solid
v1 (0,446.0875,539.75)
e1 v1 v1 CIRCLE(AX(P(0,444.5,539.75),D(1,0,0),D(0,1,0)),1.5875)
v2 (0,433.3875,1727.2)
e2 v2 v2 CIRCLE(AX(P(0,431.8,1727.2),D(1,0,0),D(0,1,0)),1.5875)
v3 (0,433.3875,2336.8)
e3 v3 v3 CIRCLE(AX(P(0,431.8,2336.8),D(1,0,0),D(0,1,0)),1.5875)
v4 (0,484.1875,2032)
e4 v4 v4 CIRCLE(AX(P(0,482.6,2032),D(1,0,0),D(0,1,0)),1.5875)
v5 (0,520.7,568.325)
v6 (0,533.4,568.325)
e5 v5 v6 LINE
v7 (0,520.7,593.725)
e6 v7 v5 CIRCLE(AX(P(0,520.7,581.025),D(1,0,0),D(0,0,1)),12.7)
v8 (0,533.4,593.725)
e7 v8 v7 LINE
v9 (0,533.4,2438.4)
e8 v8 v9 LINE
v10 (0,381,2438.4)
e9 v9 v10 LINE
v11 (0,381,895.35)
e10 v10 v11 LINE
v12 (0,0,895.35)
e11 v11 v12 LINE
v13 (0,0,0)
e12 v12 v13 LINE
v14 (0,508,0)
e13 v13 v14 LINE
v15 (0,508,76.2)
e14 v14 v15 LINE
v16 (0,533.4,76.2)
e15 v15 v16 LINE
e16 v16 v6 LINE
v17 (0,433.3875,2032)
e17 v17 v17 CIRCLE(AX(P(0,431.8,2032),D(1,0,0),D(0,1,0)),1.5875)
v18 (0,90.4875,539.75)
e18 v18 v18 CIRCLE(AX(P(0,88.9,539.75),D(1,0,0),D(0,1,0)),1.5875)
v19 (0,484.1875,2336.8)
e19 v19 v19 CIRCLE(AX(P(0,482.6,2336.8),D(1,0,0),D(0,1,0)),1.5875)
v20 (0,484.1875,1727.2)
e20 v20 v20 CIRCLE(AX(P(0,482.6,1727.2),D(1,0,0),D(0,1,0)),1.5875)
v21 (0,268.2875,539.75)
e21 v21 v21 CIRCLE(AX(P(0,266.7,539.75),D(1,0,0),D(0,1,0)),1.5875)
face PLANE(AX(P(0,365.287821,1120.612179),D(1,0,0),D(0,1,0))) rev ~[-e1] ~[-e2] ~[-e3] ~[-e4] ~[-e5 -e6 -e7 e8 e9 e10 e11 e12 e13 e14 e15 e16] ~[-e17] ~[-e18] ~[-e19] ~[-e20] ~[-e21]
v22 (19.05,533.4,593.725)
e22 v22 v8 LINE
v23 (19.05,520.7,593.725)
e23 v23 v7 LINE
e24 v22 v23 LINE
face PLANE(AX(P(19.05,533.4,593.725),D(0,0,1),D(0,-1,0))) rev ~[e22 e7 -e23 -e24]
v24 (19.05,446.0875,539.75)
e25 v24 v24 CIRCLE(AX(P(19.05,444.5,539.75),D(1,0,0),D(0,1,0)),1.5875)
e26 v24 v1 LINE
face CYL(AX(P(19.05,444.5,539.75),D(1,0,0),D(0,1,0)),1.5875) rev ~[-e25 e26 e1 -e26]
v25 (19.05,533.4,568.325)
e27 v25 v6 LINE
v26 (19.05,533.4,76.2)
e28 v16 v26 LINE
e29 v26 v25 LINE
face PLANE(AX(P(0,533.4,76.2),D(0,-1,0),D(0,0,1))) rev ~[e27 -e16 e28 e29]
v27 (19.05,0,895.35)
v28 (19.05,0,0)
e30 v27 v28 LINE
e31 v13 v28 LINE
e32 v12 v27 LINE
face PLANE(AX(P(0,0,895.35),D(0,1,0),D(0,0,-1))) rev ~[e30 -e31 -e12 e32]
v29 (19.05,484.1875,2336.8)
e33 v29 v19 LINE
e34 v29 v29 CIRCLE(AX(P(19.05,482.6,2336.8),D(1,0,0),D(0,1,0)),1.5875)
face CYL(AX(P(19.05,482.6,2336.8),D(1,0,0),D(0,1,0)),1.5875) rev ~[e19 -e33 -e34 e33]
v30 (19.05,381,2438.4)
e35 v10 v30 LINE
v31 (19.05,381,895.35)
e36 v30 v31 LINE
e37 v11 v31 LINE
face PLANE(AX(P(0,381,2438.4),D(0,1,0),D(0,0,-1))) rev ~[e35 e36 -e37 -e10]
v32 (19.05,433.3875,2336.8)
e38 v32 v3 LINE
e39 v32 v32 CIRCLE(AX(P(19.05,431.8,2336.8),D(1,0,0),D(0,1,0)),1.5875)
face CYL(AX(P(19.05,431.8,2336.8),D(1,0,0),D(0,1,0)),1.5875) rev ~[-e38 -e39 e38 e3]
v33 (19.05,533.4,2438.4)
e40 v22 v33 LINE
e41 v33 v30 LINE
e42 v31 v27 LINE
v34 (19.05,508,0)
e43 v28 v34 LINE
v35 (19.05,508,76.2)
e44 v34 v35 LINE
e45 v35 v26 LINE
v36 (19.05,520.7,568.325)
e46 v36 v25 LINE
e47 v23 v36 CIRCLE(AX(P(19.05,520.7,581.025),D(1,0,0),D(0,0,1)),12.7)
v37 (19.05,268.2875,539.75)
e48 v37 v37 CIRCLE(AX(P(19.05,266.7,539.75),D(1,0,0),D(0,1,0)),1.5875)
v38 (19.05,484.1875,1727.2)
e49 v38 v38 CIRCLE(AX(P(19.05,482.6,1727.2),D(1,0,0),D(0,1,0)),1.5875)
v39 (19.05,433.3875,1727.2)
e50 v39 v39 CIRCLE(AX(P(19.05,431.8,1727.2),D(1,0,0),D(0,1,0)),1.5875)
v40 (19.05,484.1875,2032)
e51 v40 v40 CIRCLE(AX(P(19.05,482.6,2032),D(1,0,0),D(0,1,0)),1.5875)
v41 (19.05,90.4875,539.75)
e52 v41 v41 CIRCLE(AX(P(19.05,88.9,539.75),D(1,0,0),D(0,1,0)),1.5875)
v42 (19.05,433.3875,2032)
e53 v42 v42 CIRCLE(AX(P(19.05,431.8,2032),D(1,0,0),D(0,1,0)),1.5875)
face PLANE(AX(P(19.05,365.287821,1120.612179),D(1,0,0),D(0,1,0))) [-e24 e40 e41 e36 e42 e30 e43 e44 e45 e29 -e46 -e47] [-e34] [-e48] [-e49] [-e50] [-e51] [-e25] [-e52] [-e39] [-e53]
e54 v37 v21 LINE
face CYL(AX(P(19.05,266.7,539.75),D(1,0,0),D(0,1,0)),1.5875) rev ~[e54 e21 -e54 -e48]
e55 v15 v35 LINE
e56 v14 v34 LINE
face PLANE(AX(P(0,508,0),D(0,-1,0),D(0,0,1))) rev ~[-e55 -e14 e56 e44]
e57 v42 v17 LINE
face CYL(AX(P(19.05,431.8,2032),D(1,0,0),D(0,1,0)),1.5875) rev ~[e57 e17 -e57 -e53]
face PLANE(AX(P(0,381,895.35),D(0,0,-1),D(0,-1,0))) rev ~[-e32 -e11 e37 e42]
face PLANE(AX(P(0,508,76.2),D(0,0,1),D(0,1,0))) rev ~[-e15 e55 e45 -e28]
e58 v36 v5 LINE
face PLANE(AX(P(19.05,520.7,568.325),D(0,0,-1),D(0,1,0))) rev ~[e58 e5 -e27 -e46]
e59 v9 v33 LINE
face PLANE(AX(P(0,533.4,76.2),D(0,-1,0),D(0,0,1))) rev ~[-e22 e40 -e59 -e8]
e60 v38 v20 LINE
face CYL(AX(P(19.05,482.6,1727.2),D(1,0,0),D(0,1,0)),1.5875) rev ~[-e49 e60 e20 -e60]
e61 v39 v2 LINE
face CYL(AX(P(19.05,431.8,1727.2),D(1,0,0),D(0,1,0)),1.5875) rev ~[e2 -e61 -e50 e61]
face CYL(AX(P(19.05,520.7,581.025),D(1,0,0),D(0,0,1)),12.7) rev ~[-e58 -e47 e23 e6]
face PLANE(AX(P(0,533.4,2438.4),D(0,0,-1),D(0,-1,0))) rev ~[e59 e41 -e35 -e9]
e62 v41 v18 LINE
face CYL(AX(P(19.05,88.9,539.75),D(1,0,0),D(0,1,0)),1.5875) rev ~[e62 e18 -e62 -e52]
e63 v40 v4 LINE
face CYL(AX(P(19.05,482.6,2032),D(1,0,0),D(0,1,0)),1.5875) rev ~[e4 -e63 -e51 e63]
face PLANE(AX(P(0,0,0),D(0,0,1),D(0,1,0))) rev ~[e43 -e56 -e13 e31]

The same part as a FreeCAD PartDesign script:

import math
import FreeCAD as App
import Part
import Sketcher
from FreeCAD import Vector
Q = App.Units.Quantity


def add_polygon(sketch, points):
    """Adds a closed chain of lines whose ends are joined by coincident constraints."""
    first, n = sketch.GeometryCount, len(points)
    for a, b in zip(points, points[1:] + points[:1]):
        sketch.addGeometry(Part.LineSegment(App.Vector(*a, 0), App.Vector(*b, 0)), False)
    for i in range(n):
        sketch.addConstraint(Sketcher.Constraint("Coincident", first + i, 2, first + (i + 1) % n, 1))

doc = App.newDocument("Part")
body = doc.addObject("PartDesign::Body", "Body")

# Sketch on YZ plane
sketch1 = body.newObject("Sketcher::SketchObject", "Sketch")
sketch1.AttachmentSupport = (doc.getObject("YZ_Plane"), [""])
sketch1.MapMode = "FlatFace"
add_polygon(sketch1, [(0, 895), (0, 0), (508, 0), (508, 76), (533, 76), (533, 2438), (381, 2438), (381, 895)])  # lines 0-7
sketch1.addConstraint(Sketcher.Constraint("Vertical", 0))
sketch1.addConstraint(Sketcher.Constraint("Horizontal", 1))
sketch1.addConstraint(Sketcher.Constraint("Vertical", 2))
sketch1.addConstraint(Sketcher.Constraint("Horizontal", 3))
sketch1.addConstraint(Sketcher.Constraint("Vertical", 4))
sketch1.addConstraint(Sketcher.Constraint("Horizontal", 5))
sketch1.addConstraint(Sketcher.Constraint("Vertical", 6))
sketch1.addConstraint(Sketcher.Constraint("Horizontal", 7))
sketch1.addConstraint(Sketcher.Constraint("Coincident", 0, 2, -1, 1))
sketch1.addConstraint(Sketcher.Constraint("DistanceX", 1, 1, 1, 2, Q("20 in")))
sketch1.addConstraint(Sketcher.Constraint("DistanceX", 3, 1, 3, 2, Q("1 in")))
sketch1.addConstraint(Sketcher.Constraint("DistanceX", 5, 2, 5, 1, Q("6 in")))
sketch1.addConstraint(Sketcher.Constraint("DistanceY", 2, 1, 2, 2, Q("3 in")))
sketch1.addConstraint(Sketcher.Constraint("DistanceY", 4, 1, 4, 2, Q("93 in")))
sketch1.addConstraint(Sketcher.Constraint("DistanceY", 0, 2, 0, 1, Q("35.25 in")))
pad1 = body.newObject("PartDesign::Pad", "Pad")
pad1.Profile = sketch1
pad1.Length = Q("0.75 in")

# Sketch on YZ plane
sketch2 = body.newObject("Sketcher::SketchObject", "Sketch001")
sketch2.AttachmentSupport = (doc.getObject("YZ_Plane"), [""])
sketch2.MapMode = "FlatFace"
sketch2.AttachmentOffset = App.Placement(Vector(0, 0, 0.75 * 25.4), App.Rotation())
sketch2.addGeometry(Part.Circle(Vector(431.8, 2336.8, 0), Vector(0, 0, 1), 1.6), False)
sketch2.addGeometry(Part.Circle(Vector(482.6, 2336.8, 0), Vector(0, 0, 1), 1.6), False)
sketch2.addGeometry(Part.Circle(Vector(431.8, 2032, 0), Vector(0, 0, 1), 1.6), False)
sketch2.addGeometry(Part.Circle(Vector(482.6, 2032, 0), Vector(0, 0, 1), 1.6), False)
sketch2.addGeometry(Part.Circle(Vector(431.8, 1727.2, 0), Vector(0, 0, 1), 1.6), False)
sketch2.addGeometry(Part.Circle(Vector(482.6, 1727.2, 0), Vector(0, 0, 1), 1.6), False)
sketch2.addGeometry(Part.Circle(Vector(88.9, 539.8, 0), Vector(0, 0, 1), 1.6), False)
sketch2.addGeometry(Part.Circle(Vector(266.7, 539.8, 0), Vector(0, 0, 1), 1.6), False)
sketch2.addGeometry(Part.Circle(Vector(444.5, 539.8, 0), Vector(0, 0, 1), 1.6), False)
sketch2.addGeometry(Part.LineSegment(Vector(533.4, 593.7, 0), Vector(520.7, 593.7, 0)), False)
sketch2.addGeometry(Part.ArcOfCircle(Part.Circle(Vector(520.7, 581, 0), Vector(0, 0, 1), 12.7), math.radians(90), math.radians(270)), False)
sketch2.addGeometry(Part.LineSegment(Vector(520.7, 568.3, 0), Vector(533.4, 568.3, 0)), False)
sketch2.addGeometry(Part.LineSegment(Vector(533.4, 568.3, 0), Vector(533.4, 593.7, 0)), False)
sketch2.addConstraint(Sketcher.Constraint("Tangent", 9, 2, 10, 1))
sketch2.addConstraint(Sketcher.Constraint("Tangent", 10, 2, 11, 1))
sketch2.addConstraint(Sketcher.Constraint("Coincident", 11, 2, 12, 1))
sketch2.addConstraint(Sketcher.Constraint("Coincident", 12, 2, 9, 1))
sketch2.addConstraint(Sketcher.Constraint("Horizontal", 9))
sketch2.addConstraint(Sketcher.Constraint("Horizontal", 11))
sketch2.addConstraint(Sketcher.Constraint("Vertical", 12))
sketch2.addConstraint(Sketcher.Constraint("Equal", 0, 1))
sketch2.addConstraint(Sketcher.Constraint("Equal", 1, 2))
sketch2.addConstraint(Sketcher.Constraint("Equal", 2, 3))
sketch2.addConstraint(Sketcher.Constraint("Equal", 3, 4))
sketch2.addConstraint(Sketcher.Constraint("Equal", 4, 5))
sketch2.addConstraint(Sketcher.Constraint("Equal", 5, 6))
sketch2.addConstraint(Sketcher.Constraint("Equal", 6, 7))
sketch2.addConstraint(Sketcher.Constraint("Equal", 7, 8))
sketch2.addConstraint(Sketcher.Constraint("Horizontal", 0, 3, 1, 3))
sketch2.addConstraint(Sketcher.Constraint("Horizontal", 2, 3, 3, 3))
sketch2.addConstraint(Sketcher.Constraint("Horizontal", 4, 3, 5, 3))
sketch2.addConstraint(Sketcher.Constraint("Horizontal", 6, 3, 7, 3))
sketch2.addConstraint(Sketcher.Constraint("Horizontal", 7, 3, 8, 3))
sketch2.addConstraint(Sketcher.Constraint("Vertical", 0, 3, 2, 3))
sketch2.addConstraint(Sketcher.Constraint("Vertical", 1, 3, 3, 3))
sketch2.addConstraint(Sketcher.Constraint("Vertical", 2, 3, 4, 3))
sketch2.addConstraint(Sketcher.Constraint("Vertical", 3, 3, 5, 3))
sketch2.addConstraint(Sketcher.Constraint("Radius", 10, Q("0.5 in")))
sketch2.addConstraint(Sketcher.Constraint("Diameter", 0, Q("0.125 in")))
sketch2.addConstraint(Sketcher.Constraint("DistanceX", 9, 2, 9, 1, Q("0.5 in")))
sketch2.addConstraint(Sketcher.Constraint("DistanceX", -1, 1, 0, 3, Q("17 in")))
sketch2.addConstraint(Sketcher.Constraint("DistanceY", -1, 1, 0, 3, Q("92 in")))
sketch2.addConstraint(Sketcher.Constraint("DistanceX", -1, 1, 1, 3, Q("19 in")))
sketch2.addConstraint(Sketcher.Constraint("DistanceY", -1, 1, 2, 3, Q("80 in")))
sketch2.addConstraint(Sketcher.Constraint("DistanceY", -1, 1, 4, 3, Q("68 in")))
sketch2.addConstraint(Sketcher.Constraint("DistanceX", -1, 1, 11, 2, Q("21 in")))
sketch2.addConstraint(Sketcher.Constraint("DistanceX", 6, 3, 7, 3, Q("7 in")))
sketch2.addConstraint(Sketcher.Constraint("DistanceX", 7, 3, 8, 3, Q("7 in")))
sketch2.addConstraint(Sketcher.Constraint("DistanceX", 8, 3, 10, 3, Q("3 in")))
sketch2.addConstraint(Sketcher.Constraint("DistanceY", -1, 1, 6, 3, Q("21.25 in")))
sketch2.addConstraint(Sketcher.Constraint("DistanceY", -1, 1, 10, 3, Q("22.875 in")))
pocket1 = body.newObject("PartDesign::Pocket", "Pocket")
pocket1.Profile = sketch2
pocket1.Length = Q("1 in")

doc.recompute()
